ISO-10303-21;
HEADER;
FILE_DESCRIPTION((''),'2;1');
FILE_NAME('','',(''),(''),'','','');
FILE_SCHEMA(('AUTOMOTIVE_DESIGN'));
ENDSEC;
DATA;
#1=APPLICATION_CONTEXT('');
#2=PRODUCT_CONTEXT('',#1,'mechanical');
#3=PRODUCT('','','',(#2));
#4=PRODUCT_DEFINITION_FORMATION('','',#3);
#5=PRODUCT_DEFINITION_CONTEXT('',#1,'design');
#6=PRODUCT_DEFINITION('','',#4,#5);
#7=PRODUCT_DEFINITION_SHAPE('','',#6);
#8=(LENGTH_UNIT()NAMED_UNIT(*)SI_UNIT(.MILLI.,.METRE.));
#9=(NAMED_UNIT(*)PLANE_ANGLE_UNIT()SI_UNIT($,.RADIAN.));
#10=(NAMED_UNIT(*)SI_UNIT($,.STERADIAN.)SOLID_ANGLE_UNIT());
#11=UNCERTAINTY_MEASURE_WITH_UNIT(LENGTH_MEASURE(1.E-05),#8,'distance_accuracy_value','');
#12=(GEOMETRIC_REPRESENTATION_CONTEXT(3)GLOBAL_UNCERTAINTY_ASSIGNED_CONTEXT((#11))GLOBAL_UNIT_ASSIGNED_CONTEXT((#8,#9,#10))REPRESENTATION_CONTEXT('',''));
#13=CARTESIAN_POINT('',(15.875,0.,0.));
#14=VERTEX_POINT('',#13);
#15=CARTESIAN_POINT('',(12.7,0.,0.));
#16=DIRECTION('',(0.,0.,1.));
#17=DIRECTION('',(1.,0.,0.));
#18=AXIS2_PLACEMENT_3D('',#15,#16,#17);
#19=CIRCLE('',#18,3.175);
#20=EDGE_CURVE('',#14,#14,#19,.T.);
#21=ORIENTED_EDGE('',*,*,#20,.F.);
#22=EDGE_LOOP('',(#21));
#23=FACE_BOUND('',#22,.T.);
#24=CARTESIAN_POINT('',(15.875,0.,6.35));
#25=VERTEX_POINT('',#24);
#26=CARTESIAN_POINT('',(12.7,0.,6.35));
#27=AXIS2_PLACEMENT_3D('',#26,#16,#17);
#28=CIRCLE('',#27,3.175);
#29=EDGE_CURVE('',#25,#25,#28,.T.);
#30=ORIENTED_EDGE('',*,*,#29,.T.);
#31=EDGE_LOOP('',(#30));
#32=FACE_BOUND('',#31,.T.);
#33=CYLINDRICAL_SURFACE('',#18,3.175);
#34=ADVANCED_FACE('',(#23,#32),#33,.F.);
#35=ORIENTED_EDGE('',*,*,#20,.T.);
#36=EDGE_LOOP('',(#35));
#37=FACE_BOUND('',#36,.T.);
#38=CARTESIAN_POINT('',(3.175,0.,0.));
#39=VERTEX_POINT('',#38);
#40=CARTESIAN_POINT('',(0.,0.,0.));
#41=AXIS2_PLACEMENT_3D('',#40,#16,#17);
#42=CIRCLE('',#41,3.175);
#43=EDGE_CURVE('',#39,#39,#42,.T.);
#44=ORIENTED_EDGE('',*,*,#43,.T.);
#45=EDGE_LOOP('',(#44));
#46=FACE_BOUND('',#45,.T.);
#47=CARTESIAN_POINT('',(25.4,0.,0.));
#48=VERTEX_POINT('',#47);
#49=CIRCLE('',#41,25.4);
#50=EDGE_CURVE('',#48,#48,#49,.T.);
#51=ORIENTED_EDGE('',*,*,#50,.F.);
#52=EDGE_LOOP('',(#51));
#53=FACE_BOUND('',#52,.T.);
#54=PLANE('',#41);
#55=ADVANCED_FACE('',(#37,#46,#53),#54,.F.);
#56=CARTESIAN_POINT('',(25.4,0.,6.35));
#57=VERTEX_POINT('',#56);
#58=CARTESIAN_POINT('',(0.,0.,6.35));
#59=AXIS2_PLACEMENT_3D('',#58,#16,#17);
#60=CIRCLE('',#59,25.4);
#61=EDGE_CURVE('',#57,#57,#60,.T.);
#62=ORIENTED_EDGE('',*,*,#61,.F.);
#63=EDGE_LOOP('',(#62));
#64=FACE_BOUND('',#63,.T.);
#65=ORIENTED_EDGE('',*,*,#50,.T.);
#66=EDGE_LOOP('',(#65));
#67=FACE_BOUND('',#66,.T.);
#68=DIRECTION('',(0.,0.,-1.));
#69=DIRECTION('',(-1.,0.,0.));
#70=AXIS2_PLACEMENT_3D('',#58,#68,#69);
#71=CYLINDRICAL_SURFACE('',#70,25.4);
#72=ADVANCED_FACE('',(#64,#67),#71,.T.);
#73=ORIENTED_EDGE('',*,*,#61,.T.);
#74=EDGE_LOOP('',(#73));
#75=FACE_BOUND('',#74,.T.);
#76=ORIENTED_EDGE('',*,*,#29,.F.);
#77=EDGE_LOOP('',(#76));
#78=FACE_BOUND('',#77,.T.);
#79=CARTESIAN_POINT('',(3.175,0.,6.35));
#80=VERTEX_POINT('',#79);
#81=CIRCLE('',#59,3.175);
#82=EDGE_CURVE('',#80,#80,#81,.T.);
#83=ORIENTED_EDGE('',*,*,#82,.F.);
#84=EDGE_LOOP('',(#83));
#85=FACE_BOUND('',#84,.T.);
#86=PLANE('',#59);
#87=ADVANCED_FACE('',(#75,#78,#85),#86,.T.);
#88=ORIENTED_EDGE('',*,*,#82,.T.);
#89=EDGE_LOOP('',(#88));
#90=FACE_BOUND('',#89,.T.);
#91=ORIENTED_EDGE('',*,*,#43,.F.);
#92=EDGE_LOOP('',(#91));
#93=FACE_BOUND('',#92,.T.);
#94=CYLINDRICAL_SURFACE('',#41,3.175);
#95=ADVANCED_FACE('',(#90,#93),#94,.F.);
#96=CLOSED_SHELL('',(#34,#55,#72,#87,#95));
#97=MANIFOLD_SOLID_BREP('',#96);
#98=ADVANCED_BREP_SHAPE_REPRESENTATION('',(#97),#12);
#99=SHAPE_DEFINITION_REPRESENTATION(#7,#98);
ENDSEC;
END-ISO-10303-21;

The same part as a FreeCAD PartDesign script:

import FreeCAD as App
import Part
import Sketcher
Q = App.Units.Quantity

doc = App.newDocument("Part")
body = doc.addObject("PartDesign::Body", "Body")

# Sketch on XY plane
sketch1 = doc.addObject("Sketcher::SketchObject", "Sketch")
body.addObject(sketch1)
sketch1.AttachmentSupport = (doc.XY_Plane, [""])
sketch1.MapMode = "FlatFace"
sketch1.addGeometry(Part.Circle(App.Vector(0, 0, 0), App.Vector(0, 0, 1), 25), False)
sketch1.addConstraint([
    Sketcher.Constraint("Coincident", 0, 3, -1, 1),
    Sketcher.Constraint("Diameter", 0, Q("2 in")),
])
pad1 = doc.addObject("PartDesign::Pad", "Pad")
body.addObject(pad1)
pad1.Profile = sketch1
pad1.Length = Q("0.25 in")

# Sketch on XY plane
sketch2 = doc.addObject("Sketcher::SketchObject", "Sketch001")
body.addObject(sketch2)
sketch2.AttachmentSupport = (doc.XY_Plane, [""])
sketch2.MapMode = "FlatFace"
sketch2.AttachmentOffset = App.Placement(App.Vector(0, 0, 0.25 * 25.4), App.Rotation())
sketch2.addGeometry([
    Part.Circle(App.Vector(12.7, 0, 0), App.Vector(0, 0, 1), 3.2),
    Part.Circle(App.Vector(0, 0, 0), App.Vector(0, 0, 1), 3.2),
], False)
sketch2.addConstraint([
    Sketcher.Constraint("Coincident", 1, 3, -1, 1),
    Sketcher.Constraint("Equal", 0, 1),
    Sketcher.Constraint("PointOnObject", 0, 3, -1),
    Sketcher.Constraint("Diameter", 0, Q("0.25 in")),
    Sketcher.Constraint("DistanceX", -1, 1, 0, 3, Q("0.5 in")),
])
pocket1 = doc.addObject("PartDesign::Pocket", "Pocket")
body.addObject(pocket1)
pocket1.Profile = sketch2
pocket1.Type = "ThroughAll"

doc.recompute()
